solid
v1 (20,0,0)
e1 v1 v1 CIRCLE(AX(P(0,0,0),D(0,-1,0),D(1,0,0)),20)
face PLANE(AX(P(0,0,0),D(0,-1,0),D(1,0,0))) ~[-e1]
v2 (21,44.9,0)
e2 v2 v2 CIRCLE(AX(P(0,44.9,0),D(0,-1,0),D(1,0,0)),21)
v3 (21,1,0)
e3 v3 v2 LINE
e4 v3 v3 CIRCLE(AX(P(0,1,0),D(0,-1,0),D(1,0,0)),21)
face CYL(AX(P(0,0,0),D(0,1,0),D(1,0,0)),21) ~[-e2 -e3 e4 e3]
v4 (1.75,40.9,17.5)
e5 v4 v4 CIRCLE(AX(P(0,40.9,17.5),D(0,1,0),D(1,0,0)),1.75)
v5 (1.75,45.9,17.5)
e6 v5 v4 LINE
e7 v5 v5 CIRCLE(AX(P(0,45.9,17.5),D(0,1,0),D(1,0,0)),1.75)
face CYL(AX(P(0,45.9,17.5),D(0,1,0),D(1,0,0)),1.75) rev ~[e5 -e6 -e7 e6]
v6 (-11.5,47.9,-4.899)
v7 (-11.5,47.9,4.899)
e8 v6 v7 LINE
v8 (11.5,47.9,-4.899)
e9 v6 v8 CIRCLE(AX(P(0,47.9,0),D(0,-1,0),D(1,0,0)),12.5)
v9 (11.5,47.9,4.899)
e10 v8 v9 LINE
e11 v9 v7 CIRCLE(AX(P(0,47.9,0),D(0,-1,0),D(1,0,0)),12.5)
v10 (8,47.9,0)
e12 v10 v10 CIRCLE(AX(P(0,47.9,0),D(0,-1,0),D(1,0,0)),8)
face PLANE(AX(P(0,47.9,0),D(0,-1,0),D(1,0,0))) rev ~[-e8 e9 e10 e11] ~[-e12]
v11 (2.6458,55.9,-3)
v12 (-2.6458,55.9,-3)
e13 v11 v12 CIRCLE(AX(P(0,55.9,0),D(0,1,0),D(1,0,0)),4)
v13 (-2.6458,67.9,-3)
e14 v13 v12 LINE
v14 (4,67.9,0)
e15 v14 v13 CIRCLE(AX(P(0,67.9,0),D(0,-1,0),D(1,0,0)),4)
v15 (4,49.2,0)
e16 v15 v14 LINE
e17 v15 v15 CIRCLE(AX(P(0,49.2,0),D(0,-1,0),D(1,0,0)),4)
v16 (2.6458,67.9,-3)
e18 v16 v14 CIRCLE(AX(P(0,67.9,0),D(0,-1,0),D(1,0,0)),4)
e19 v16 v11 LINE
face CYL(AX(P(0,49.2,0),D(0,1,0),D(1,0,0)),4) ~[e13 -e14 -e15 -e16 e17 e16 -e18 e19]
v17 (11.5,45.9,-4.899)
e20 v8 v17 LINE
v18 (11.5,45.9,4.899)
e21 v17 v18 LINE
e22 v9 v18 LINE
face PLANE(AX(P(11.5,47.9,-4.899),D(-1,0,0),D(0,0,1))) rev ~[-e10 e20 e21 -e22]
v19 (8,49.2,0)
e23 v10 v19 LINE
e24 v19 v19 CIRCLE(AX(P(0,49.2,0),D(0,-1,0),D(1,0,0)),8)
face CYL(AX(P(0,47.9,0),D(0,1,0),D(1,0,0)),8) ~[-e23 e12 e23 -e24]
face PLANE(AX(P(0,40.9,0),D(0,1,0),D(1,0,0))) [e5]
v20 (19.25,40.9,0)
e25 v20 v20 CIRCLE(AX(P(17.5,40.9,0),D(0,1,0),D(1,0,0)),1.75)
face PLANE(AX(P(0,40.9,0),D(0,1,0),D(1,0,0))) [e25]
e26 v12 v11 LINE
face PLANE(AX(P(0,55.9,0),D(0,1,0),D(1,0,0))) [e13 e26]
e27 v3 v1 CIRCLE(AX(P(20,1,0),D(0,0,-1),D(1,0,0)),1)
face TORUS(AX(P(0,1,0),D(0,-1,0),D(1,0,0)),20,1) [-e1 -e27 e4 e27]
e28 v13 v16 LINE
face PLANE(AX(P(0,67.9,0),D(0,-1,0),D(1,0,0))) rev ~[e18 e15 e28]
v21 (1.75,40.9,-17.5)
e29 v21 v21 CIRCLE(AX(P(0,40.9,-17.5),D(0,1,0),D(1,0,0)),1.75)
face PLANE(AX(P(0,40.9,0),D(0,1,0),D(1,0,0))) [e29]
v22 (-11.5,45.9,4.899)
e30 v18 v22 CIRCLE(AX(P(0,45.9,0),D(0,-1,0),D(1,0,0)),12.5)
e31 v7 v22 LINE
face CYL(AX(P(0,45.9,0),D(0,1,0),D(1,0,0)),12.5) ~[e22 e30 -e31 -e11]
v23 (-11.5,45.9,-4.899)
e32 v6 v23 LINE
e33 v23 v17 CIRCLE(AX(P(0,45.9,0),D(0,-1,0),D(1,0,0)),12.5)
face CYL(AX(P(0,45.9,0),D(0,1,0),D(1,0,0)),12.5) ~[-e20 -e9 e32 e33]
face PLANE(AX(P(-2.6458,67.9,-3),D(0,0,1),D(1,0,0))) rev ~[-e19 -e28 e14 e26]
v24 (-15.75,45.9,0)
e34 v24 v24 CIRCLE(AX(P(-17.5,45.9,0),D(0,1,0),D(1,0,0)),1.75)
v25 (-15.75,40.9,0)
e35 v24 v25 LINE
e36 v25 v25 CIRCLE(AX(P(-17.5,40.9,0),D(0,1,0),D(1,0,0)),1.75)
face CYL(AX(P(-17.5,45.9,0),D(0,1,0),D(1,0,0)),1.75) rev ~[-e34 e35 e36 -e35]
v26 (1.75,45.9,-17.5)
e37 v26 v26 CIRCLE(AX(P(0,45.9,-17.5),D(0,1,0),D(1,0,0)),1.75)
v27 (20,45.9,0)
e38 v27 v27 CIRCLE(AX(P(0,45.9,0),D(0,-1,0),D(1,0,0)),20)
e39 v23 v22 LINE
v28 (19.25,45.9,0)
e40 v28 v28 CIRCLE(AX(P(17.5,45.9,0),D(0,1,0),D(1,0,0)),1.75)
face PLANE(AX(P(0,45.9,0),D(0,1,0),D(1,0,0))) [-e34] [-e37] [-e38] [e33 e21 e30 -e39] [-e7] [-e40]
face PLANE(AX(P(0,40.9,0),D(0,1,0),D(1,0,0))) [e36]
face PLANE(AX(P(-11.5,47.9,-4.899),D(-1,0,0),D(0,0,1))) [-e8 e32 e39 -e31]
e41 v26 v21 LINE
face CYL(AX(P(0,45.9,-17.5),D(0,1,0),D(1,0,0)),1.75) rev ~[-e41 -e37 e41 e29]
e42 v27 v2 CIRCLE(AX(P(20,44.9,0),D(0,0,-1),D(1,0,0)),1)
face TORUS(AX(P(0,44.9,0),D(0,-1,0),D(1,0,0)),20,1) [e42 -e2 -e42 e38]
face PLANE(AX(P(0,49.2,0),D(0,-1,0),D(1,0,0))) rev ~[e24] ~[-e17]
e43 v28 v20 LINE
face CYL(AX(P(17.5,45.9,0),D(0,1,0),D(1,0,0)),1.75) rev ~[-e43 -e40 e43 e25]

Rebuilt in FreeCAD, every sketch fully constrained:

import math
import FreeCAD as App
import Part
import Sketcher
from FreeCAD import Vector
Q = App.Units.Quantity


def edges_at(feature, points):
    """Names of the edges that pass closest to the given points."""
    edges = feature.Shape.Edges
    near = lambda p: min(range(len(edges)), key=lambda i: edges[i].distToShape(Part.Vertex(*p))[0])
    return sorted({f"Edge{near(p) + 1}" for p in points})

doc = App.newDocument("Part")
params = doc.addObject("Spreadsheet::Sheet", "Params")
for row, (alias, value) in enumerate([
    ("sketch1_width", "21 mm"),
    ("sketch1_width2", "4 mm"),
    ("sketch1_height", "2 mm"),
    ("sketch1_height2", "45.9 mm"),
    ("sketch1_height3", "1.3 mm"),
    ("revolution_angle", "360 deg"),
    ("sketch2_radius", "4 mm"),
    ("pocket1_length", "12 mm"),
    ("sketch3_radius", "12.5 mm"),
    ("pocket2_length", "2 mm"),
    ("fillet_radius", "1 mm"),
    ("sketch4_diameter", "3.5 mm"),
    ("pocket3_length", "5 mm"),
], start=1):
    params.set(f"A{row}", alias)
    params.set(f"B{row}", "=" + value)
    params.setAlias(f"B{row}", alias)

body = doc.addObject("PartDesign::Body", "Body")

# Sketch on XY plane
sketch1 = body.newObject("Sketcher::SketchObject", "Sketch")
sketch1.AttachmentSupport = (doc.getObject("XY_Plane"), [""])
sketch1.MapMode = "FlatFace"
sketch1.addGeometry(Part.LineSegment(Vector(0, 67.9, 0), Vector(0, 0, 0)), False)
sketch1.addGeometry(Part.LineSegment(Vector(0, 0, 0), Vector(21, 0, 0)), False)
sketch1.addGeometry(Part.LineSegment(Vector(21, 0, 0), Vector(21, 45.9, 0)), False)
sketch1.addGeometry(Part.LineSegment(Vector(21, 45.9, 0), Vector(12.5, 45.9, 0)), False)
sketch1.addGeometry(Part.LineSegment(Vector(12.5, 45.9, 0), Vector(12.5, 47.9, 0)), False)
sketch1.addGeometry(Part.LineSegment(Vector(12.5, 47.9, 0), Vector(8, 47.9, 0)), False)
sketch1.addGeometry(Part.LineSegment(Vector(8, 47.9, 0), Vector(8, 49.2, 0)), False)
sketch1.addGeometry(Part.LineSegment(Vector(8, 49.2, 0), Vector(4, 49.2, 0)), False)
sketch1.addGeometry(Part.LineSegment(Vector(4, 49.2, 0), Vector(4, 67.9, 0)), False)
sketch1.addGeometry(Part.LineSegment(Vector(4, 67.9, 0), Vector(0, 67.9, 0)), False)
sketch1.addConstraint(Sketcher.Constraint("Coincident", 0, 2, 1, 1))
sketch1.addConstraint(Sketcher.Constraint("Coincident", 1, 2, 2, 1))
sketch1.addConstraint(Sketcher.Constraint("Coincident", 2, 2, 3, 1))
sketch1.addConstraint(Sketcher.Constraint("Coincident", 3, 2, 4, 1))
sketch1.addConstraint(Sketcher.Constraint("Coincident", 4, 2, 5, 1))
sketch1.addConstraint(Sketcher.Constraint("Coincident", 5, 2, 6, 1))
sketch1.addConstraint(Sketcher.Constraint("Coincident", 6, 2, 7, 1))
sketch1.addConstraint(Sketcher.Constraint("Coincident", 7, 2, 8, 1))
sketch1.addConstraint(Sketcher.Constraint("Coincident", 8, 2, 9, 1))
sketch1.addConstraint(Sketcher.Constraint("Coincident", 9, 2, 0, 1))
sketch1.addConstraint(Sketcher.Constraint("Vertical", 0))
sketch1.addConstraint(Sketcher.Constraint("Horizontal", 1))
sketch1.addConstraint(Sketcher.Constraint("Vertical", 2))
sketch1.addConstraint(Sketcher.Constraint("Horizontal", 3))
sketch1.addConstraint(Sketcher.Constraint("Vertical", 4))
sketch1.addConstraint(Sketcher.Constraint("Horizontal", 5))
sketch1.addConstraint(Sketcher.Constraint("Vertical", 6))
sketch1.addConstraint(Sketcher.Constraint("Horizontal", 7))
sketch1.addConstraint(Sketcher.Constraint("Vertical", 8))
sketch1.addConstraint(Sketcher.Constraint("Horizontal", 9))
sketch1.addConstraint(Sketcher.Constraint("Coincident", 0, 2, -1, 1))
sketch1.addConstraint(Sketcher.Constraint("Equal", 7, 9))
sketch1.addConstraint(Sketcher.Constraint("DistanceX", 1, 1, 1, 2, Q("21 mm")))
sketch1.addConstraint(Sketcher.Constraint("DistanceX", 7, 2, 7, 1, Q("4 mm")))
sketch1.addConstraint(Sketcher.Constraint("DistanceY", 4, 1, 4, 2, Q("2 mm")))
sketch1.addConstraint(Sketcher.Constraint("DistanceY", 2, 1, 2, 2, Q("45.9 mm")))
sketch1.addConstraint(Sketcher.Constraint("DistanceY", 6, 1, 6, 2, Q("1.3 mm")))
sketch1.addConstraint(Sketcher.Constraint("DistanceY", 5, 2, 8, 2, Q("20 mm")))
sketch1.addConstraint(Sketcher.Constraint("DistanceX", -1, 1, 3, 2, Q("12.5 mm")))
sketch1.setExpression("Constraints[22]", "Params.sketch1_width")
sketch1.setExpression("Constraints[23]", "Params.sketch1_width2")
sketch1.setExpression("Constraints[24]", "Params.sketch1_height")
sketch1.setExpression("Constraints[25]", "Params.sketch1_height2")
sketch1.setExpression("Constraints[26]", "Params.sketch1_height3")
revolution = body.newObject("PartDesign::Revolution", "Revolution")
revolution.Profile = sketch1
revolution.ReferenceAxis = (sketch1, ["V_Axis"])
revolution.setExpression("Angle", "Params.revolution_angle")

# Sketch on XZ plane
sketch2 = body.newObject("Sketcher::SketchObject", "Sketch001")
sketch2.AttachmentSupport = (doc.getObject("XZ_Plane"), [""])
sketch2.MapMode = "FlatFace"
sketch2.AttachmentOffset = App.Placement(Vector(0, 0, -67.9), App.Rotation())
sketch2.addGeometry(Part.ArcOfCircle(Part.Circle(Vector(0, 0, 0), Vector(0, 0, 1), 4), math.radians(-131.410145), math.radians(-48.589855)), False)
sketch2.addGeometry(Part.LineSegment(Vector(2.6458, -3, 0), Vector(-2.6458, -3, 0)), False)
sketch2.addConstraint(Sketcher.Constraint("Coincident", 0, 1, 1, 2))
sketch2.addConstraint(Sketcher.Constraint("Coincident", 1, 1, 0, 2))
sketch2.addConstraint(Sketcher.Constraint("Horizontal", 1))
sketch2.addConstraint(Sketcher.Constraint("Coincident", 0, 3, -1, 1))
sketch2.addConstraint(Sketcher.Constraint("DistanceY", 0, 1, -1, 1, Q("3 mm")))
sketch2.addConstraint(Sketcher.Constraint("Radius", 0, Q("4 mm")))
sketch2.setExpression("Constraints[5]", "Params.sketch2_radius")
pocket1 = body.newObject("PartDesign::Pocket", "Pocket")
pocket1.Profile = sketch2
pocket1.setExpression("Length", "Params.pocket1_length")
pocket1.Reversed = True

# Sketch on XZ plane
sketch3 = body.newObject("Sketcher::SketchObject", "Sketch002")
sketch3.AttachmentSupport = (doc.getObject("XZ_Plane"), [""])
sketch3.MapMode = "FlatFace"
sketch3.AttachmentOffset = App.Placement(Vector(0, 0, -47.9), App.Rotation())
sketch3.addGeometry(Part.LineSegment(Vector(11.5, -4.899, 0), Vector(11.5, 4.899, 0)), False)
sketch3.addGeometry(Part.ArcOfCircle(Part.Circle(Vector(0, 0, 0), Vector(0, 0, 1), 12.500008), math.radians(-23.074005), math.radians(23.074005)), False)
sketch3.addGeometry(Part.ArcOfCircle(Part.Circle(Vector(0, 0, 0), Vector(0, 0, 1), 12.5), math.radians(156.925995), math.radians(203.074005)), False)
sketch3.addGeometry(Part.LineSegment(Vector(-11.5, -4.899, 0), Vector(-11.5, 4.899, 0)), False)
sketch3.addConstraint(Sketcher.Constraint("Coincident", 0, 1, 1, 1))
sketch3.addConstraint(Sketcher.Constraint("Coincident", 1, 2, 0, 2))
sketch3.addConstraint(Sketcher.Constraint("Coincident", 2, 1, 3, 2))
sketch3.addConstraint(Sketcher.Constraint("Coincident", 3, 1, 2, 2))
sketch3.addConstraint(Sketcher.Constraint("Vertical", 0))
sketch3.addConstraint(Sketcher.Constraint("Vertical", 3))
sketch3.addConstraint(Sketcher.Constraint("Coincident", 1, 3, -1, 1))
sketch3.addConstraint(Sketcher.Constraint("Coincident", 2, 3, -1, 1))
sketch3.addConstraint(Sketcher.Constraint("Equal", 1, 2))
sketch3.addConstraint(Sketcher.Constraint("Horizontal", 1, 2, 2, 1))
sketch3.addConstraint(Sketcher.Constraint("DistanceX", -1, 1, 0, 1, Q("11.5 mm")))
sketch3.addConstraint(Sketcher.Constraint("Radius", 1, Q("12.5 mm")))
sketch3.setExpression("Constraints[11]", "Params.sketch3_radius")
pocket2 = body.newObject("PartDesign::Pocket", "Pocket001")
pocket2.Profile = sketch3
pocket2.setExpression("Length", "Params.pocket2_length")
pocket2.Reversed = True
doc.recompute()

fillet = body.newObject("PartDesign::Fillet", "Fillet")
fillet.Base = (pocket2, edges_at(pocket2, [(-21, 45.9, 0), (-21, 0, 0)]))
fillet.setExpression("Radius", "Params.fillet_radius")

# Sketch on XZ plane
sketch4 = body.newObject("Sketcher::SketchObject", "Sketch003")
sketch4.AttachmentSupport = (doc.getObject("XZ_Plane"), [""])
sketch4.MapMode = "FlatFace"
sketch4.AttachmentOffset = App.Placement(Vector(0, 0, -45.9), App.Rotation())
sketch4.addGeometry(Part.Circle(Vector(-17.5, 0, 0), Vector(0, 0, 1), 1.75), False)
sketch4.addGeometry(Part.Circle(Vector(0, 17.5, 0), Vector(0, 0, 1), 1.75), False)
sketch4.addGeometry(Part.Circle(Vector(17.5, 0, 0), Vector(0, 0, 1), 1.75), False)
sketch4.addGeometry(Part.Circle(Vector(0, -17.5, 0), Vector(0, 0, 1), 1.75), False)
sketch4.addConstraint(Sketcher.Constraint("Equal", 0, 1))
sketch4.addConstraint(Sketcher.Constraint("Equal", 1, 2))
sketch4.addConstraint(Sketcher.Constraint("Equal", 2, 3))
sketch4.addConstraint(Sketcher.Constraint("Symmetric", 0, 3, 2, 3, -1, 1))
sketch4.addConstraint(Sketcher.Constraint("Symmetric", 1, 3, 3, 3, -1, 1))
sketch4.addConstraint(Sketcher.Constraint("PointOnObject", 0, 3, -1))
sketch4.addConstraint(Sketcher.Constraint("PointOnObject", 1, 3, -2))
sketch4.addConstraint(Sketcher.Constraint("Diameter", 0, Q("3.5 mm")))
sketch4.addConstraint(Sketcher.Constraint("DistanceX", 0, 3, 2, 3, Q("35 mm")))
sketch4.addConstraint(Sketcher.Constraint("DistanceY", 3, 3, 1, 3, Q("35 mm")))
sketch4.setExpression("Constraints[7]", "Params.sketch4_diameter")
pocket3 = body.newObject("PartDesign::Pocket", "Pocket002")
pocket3.Profile = sketch4
pocket3.setExpression("Length", "Params.pocket3_length")
pocket3.Reversed = True

doc.recompute()
